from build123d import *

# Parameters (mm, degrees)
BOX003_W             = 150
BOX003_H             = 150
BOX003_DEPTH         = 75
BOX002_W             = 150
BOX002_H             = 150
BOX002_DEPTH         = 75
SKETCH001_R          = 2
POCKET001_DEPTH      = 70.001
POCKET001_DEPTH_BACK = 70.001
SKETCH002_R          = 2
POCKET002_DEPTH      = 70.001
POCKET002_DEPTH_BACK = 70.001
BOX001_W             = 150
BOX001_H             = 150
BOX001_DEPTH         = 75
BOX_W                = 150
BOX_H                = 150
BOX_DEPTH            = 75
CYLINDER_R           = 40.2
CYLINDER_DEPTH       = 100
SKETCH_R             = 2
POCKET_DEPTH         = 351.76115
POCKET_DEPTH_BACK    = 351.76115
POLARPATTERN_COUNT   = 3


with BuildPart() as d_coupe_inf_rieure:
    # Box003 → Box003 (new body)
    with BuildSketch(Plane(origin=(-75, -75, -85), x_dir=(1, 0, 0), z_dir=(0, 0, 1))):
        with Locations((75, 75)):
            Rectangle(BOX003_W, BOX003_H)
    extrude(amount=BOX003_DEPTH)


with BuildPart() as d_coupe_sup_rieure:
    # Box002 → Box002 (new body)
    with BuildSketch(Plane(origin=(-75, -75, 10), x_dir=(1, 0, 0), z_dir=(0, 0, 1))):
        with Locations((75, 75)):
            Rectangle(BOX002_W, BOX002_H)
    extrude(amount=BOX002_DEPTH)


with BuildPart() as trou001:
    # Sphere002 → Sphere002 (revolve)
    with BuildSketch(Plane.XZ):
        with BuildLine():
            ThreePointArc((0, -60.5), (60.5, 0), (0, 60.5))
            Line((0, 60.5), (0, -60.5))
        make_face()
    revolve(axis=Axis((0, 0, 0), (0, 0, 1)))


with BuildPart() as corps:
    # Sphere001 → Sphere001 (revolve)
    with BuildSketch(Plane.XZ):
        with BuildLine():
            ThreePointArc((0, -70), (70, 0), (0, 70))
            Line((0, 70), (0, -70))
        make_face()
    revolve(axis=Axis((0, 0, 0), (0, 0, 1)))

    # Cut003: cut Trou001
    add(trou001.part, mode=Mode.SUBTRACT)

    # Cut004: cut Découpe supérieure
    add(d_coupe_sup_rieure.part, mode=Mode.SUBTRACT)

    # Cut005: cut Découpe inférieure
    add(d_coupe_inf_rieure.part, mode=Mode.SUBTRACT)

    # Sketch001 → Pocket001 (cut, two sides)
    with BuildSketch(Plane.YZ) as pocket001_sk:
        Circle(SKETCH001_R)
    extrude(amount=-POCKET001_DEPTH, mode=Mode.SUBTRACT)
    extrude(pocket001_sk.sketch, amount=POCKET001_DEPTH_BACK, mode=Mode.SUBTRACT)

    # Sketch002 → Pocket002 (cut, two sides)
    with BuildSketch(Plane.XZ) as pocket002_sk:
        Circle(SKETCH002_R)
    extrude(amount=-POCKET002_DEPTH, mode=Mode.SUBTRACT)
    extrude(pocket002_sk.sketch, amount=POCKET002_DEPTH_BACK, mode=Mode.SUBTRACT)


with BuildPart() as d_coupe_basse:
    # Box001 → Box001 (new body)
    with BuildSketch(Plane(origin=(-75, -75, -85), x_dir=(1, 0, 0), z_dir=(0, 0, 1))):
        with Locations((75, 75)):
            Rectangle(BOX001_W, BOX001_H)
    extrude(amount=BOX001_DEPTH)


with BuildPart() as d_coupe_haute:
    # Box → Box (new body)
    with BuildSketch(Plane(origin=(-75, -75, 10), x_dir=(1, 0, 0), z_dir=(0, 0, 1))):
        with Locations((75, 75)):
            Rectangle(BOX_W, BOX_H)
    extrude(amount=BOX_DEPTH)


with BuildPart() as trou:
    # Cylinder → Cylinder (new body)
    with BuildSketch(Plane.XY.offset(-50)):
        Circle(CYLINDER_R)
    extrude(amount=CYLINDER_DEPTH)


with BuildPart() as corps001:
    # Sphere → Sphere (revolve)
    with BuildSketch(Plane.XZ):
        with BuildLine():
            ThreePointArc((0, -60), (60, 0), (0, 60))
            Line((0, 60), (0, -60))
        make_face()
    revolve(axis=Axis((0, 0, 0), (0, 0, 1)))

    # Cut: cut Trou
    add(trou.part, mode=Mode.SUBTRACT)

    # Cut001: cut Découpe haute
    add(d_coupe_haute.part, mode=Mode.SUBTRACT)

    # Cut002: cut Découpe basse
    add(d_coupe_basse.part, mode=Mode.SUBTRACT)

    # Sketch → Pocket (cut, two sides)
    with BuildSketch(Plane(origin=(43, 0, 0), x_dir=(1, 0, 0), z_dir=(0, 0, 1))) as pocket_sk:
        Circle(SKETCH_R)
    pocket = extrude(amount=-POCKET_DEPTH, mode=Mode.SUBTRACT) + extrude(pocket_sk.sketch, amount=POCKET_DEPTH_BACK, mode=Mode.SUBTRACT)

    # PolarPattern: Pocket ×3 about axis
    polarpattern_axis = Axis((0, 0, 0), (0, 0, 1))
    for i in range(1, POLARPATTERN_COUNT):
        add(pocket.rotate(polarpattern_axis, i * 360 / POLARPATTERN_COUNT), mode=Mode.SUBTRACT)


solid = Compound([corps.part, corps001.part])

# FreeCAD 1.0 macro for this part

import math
import FreeCAD as App
import Part
import Sketcher

V = App.Vector
Q = App.Units.Quantity

doc = App.newDocument("Part")
body = doc.addObject("PartDesign::Body", "Body")

# Sketch on XY plane
sketch1 = body.newObject("Sketcher::SketchObject", "Sketch")
sketch1.AttachmentSupport = (doc.getObject("XY_Plane"), [""])
sketch1.MapMode = "FlatFace"
sketch1.AttachmentOffset = App.Placement(V(0, 0, -85), App.Rotation())
sketch1.addGeometry(Part.LineSegment(V(-75, 75, 0), V(-75, -75, 0)), False)
sketch1.addGeometry(Part.LineSegment(V(-75, -75, 0), V(75, -75, 0)), False)
sketch1.addGeometry(Part.LineSegment(V(75, -75, 0), V(75, 75, 0)), False)
sketch1.addGeometry(Part.LineSegment(V(75, 75, 0), V(-75, 75, 0)), False)
sketch1.addConstraint(Sketcher.Constraint("Coincident", 0, 2, 1, 1))
sketch1.addConstraint(Sketcher.Constraint("Coincident", 1, 2, 2, 1))
sketch1.addConstraint(Sketcher.Constraint("Coincident", 2, 2, 3, 1))
sketch1.addConstraint(Sketcher.Constraint("Coincident", 3, 2, 0, 1))
sketch1.addConstraint(Sketcher.Constraint("Vertical", 0))
sketch1.addConstraint(Sketcher.Constraint("Horizontal", 1))
sketch1.addConstraint(Sketcher.Constraint("Vertical", 2))
sketch1.addConstraint(Sketcher.Constraint("Horizontal", 3))
sketch1.addConstraint(Sketcher.Constraint("Symmetric", 0, 2, 2, 2, -1, 1))
sketch1.addConstraint(Sketcher.Constraint("Equal", 3, 0))
sketch1.addConstraint(Sketcher.Constraint("DistanceX", 1, 1, 1, 2, Q("150 mm")))
pad1 = body.newObject("PartDesign::Pad", "Pad")
pad1.Profile = sketch1
pad1.Length = 75
body2 = doc.addObject("PartDesign::Body", "Body001")

# Sketch on XY plane
sketch2 = body2.newObject("Sketcher::SketchObject", "Sketch001")
sketch2.AttachmentSupport = (doc.getObject("XY_Plane001"), [""])
sketch2.MapMode = "FlatFace"
sketch2.AttachmentOffset = App.Placement(V(0, 0, 10), App.Rotation())
sketch2.addGeometry(Part.LineSegment(V(-75, 75, 0), V(-75, -75, 0)), False)
sketch2.addGeometry(Part.LineSegment(V(-75, -75, 0), V(75, -75, 0)), False)
sketch2.addGeometry(Part.LineSegment(V(75, -75, 0), V(75, 75, 0)), False)
sketch2.addGeometry(Part.LineSegment(V(75, 75, 0), V(-75, 75, 0)), False)
sketch2.addConstraint(Sketcher.Constraint("Coincident", 0, 2, 1, 1))
sketch2.addConstraint(Sketcher.Constraint("Coincident", 1, 2, 2, 1))
sketch2.addConstraint(Sketcher.Constraint("Coincident", 2, 2, 3, 1))
sketch2.addConstraint(Sketcher.Constraint("Coincident", 3, 2, 0, 1))
sketch2.addConstraint(Sketcher.Constraint("Vertical", 0))
sketch2.addConstraint(Sketcher.Constraint("Horizontal", 1))
sketch2.addConstraint(Sketcher.Constraint("Vertical", 2))
sketch2.addConstraint(Sketcher.Constraint("Horizontal", 3))
sketch2.addConstraint(Sketcher.Constraint("Symmetric", 0, 2, 2, 2, -1, 1))
sketch2.addConstraint(Sketcher.Constraint("Equal", 3, 0))
sketch2.addConstraint(Sketcher.Constraint("DistanceX", 1, 1, 1, 2, Q("150 mm")))
pad2 = body2.newObject("PartDesign::Pad", "Pad001")
pad2.Profile = sketch2
pad2.Length = 75
body3 = doc.addObject("PartDesign::Body", "Body002")

# Sketch on XZ plane
sketch3 = body3.newObject("Sketcher::SketchObject", "Sketch002")
sketch3.AttachmentSupport = (doc.getObject("XZ_Plane002"), [""])
sketch3.MapMode = "FlatFace"
sketch3.addGeometry(Part.ArcOfCircle(Part.Circle(V(0, 0, 0), V(0, 0, 1), 60.5), math.radians(-90), math.radians(90)), False)
sketch3.addGeometry(Part.LineSegment(V(0, 60.5, 0), V(0, -60.5, 0)), False)
sketch3.addConstraint(Sketcher.Constraint("Coincident", 0, 1, 1, 2))
sketch3.addConstraint(Sketcher.Constraint("Coincident", 1, 1, 0, 2))
sketch3.addConstraint(Sketcher.Constraint("Vertical", 1))
sketch3.addConstraint(Sketcher.Constraint("Coincident", 0, 3, -1, 1))
sketch3.addConstraint(Sketcher.Constraint("PointOnObject", 0, 1, -2))
sketch3.addConstraint(Sketcher.Constraint("Radius", 0, Q("60.5 mm")))
revolution = body3.newObject("PartDesign::Revolution", "Revolution")
revolution.Profile = sketch3
revolution.ReferenceAxis = (sketch3, ["V_Axis"])
revolution.Angle = 360
body4 = doc.addObject("PartDesign::Body", "Body003")

# Sketch on XZ plane
sketch4 = body4.newObject("Sketcher::SketchObject", "Sketch003")
sketch4.AttachmentSupport = (doc.getObject("XZ_Plane003"), [""])
sketch4.MapMode = "FlatFace"
sketch4.addGeometry(Part.ArcOfCircle(Part.Circle(V(0, 0, 0), V(0, 0, 1), 70), math.radians(-90), math.radians(90)), False)
sketch4.addGeometry(Part.LineSegment(V(0, 70, 0), V(0, -70, 0)), False)
sketch4.addConstraint(Sketcher.Constraint("Coincident", 0, 1, 1, 2))
sketch4.addConstraint(Sketcher.Constraint("Coincident", 1, 1, 0, 2))
sketch4.addConstraint(Sketcher.Constraint("Vertical", 1))
sketch4.addConstraint(Sketcher.Constraint("Coincident", 0, 3, -1, 1))
sketch4.addConstraint(Sketcher.Constraint("PointOnObject", 0, 1, -2))
sketch4.addConstraint(Sketcher.Constraint("Radius", 0, Q("70 mm")))
revolution2 = body4.newObject("PartDesign::Revolution", "Revolution001")
revolution2.Profile = sketch4
revolution2.ReferenceAxis = (sketch4, ["V_Axis"])
revolution2.Angle = 360
doc.recompute()

boolean = body4.newObject("PartDesign::Boolean", "Boolean")
boolean.Type = "Cut"
boolean.addObjects([body3])
doc.recompute()

boolean2 = body4.newObject("PartDesign::Boolean", "Boolean001")
boolean2.Type = "Cut"
boolean2.addObjects([body2])
doc.recompute()

boolean3 = body4.newObject("PartDesign::Boolean", "Boolean002")
boolean3.Type = "Cut"
boolean3.addObjects([body])

# Sketch on YZ plane
sketch5 = body4.newObject("Sketcher::SketchObject", "Sketch004")
sketch5.AttachmentSupport = (doc.getObject("YZ_Plane003"), [""])
sketch5.MapMode = "FlatFace"
sketch5.addGeometry(Part.Circle(V(0, 0, 0), V(0, 0, 1), 2), False)
sketch5.addConstraint(Sketcher.Constraint("Coincident", 0, 3, -1, 1))
sketch5.addConstraint(Sketcher.Constraint("Diameter", 0, Q("4 mm")))
pocket1 = body4.newObject("PartDesign::Pocket", "Pocket")
pocket1.Profile = sketch5
pocket1.Type = "ThroughAll"
pocket1.Midplane = True

# Sketch on XZ plane
sketch6 = body4.newObject("Sketcher::SketchObject", "Sketch005")
sketch6.AttachmentSupport = (doc.getObject("XZ_Plane003"), [""])
sketch6.MapMode = "FlatFace"
sketch6.addGeometry(Part.Circle(V(0, 0, 0), V(0, 0, 1), 2), False)
sketch6.addConstraint(Sketcher.Constraint("Coincident", 0, 3, -1, 1))
sketch6.addConstraint(Sketcher.Constraint("Diameter", 0, Q("4 mm")))
pocket2 = body4.newObject("PartDesign::Pocket", "Pocket001")
pocket2.Profile = sketch6
pocket2.Type = "ThroughAll"
pocket2.Midplane = True
body5 = doc.addObject("PartDesign::Body", "Body004")

# Sketch on XY plane
sketch7 = body5.newObject("Sketcher::SketchObject", "Sketch006")
sketch7.AttachmentSupport = (doc.getObject("XY_Plane004"), [""])
sketch7.MapMode = "FlatFace"
sketch7.AttachmentOffset = App.Placement(V(0, 0, -85), App.Rotation())
sketch7.addGeometry(Part.LineSegment(V(-75, 75, 0), V(-75, -75, 0)), False)
sketch7.addGeometry(Part.LineSegment(V(-75, -75, 0), V(75, -75, 0)), False)
sketch7.addGeometry(Part.LineSegment(V(75, -75, 0), V(75, 75, 0)), False)
sketch7.addGeometry(Part.LineSegment(V(75, 75, 0), V(-75, 75, 0)), False)
sketch7.addConstraint(Sketcher.Constraint("Coincident", 0, 2, 1, 1))
sketch7.addConstraint(Sketcher.Constraint("Coincident", 1, 2, 2, 1))
sketch7.addConstraint(Sketcher.Constraint("Coincident", 2, 2, 3, 1))
sketch7.addConstraint(Sketcher.Constraint("Coincident", 3, 2, 0, 1))
sketch7.addConstraint(Sketcher.Constraint("Vertical", 0))
sketch7.addConstraint(Sketcher.Constraint("Horizontal", 1))
sketch7.addConstraint(Sketcher.Constraint("Vertical", 2))
sketch7.addConstraint(Sketcher.Constraint("Horizontal", 3))
sketch7.addConstraint(Sketcher.Constraint("Symmetric", 0, 2, 2, 2, -1, 1))
sketch7.addConstraint(Sketcher.Constraint("Equal", 3, 0))
sketch7.addConstraint(Sketcher.Constraint("DistanceX", 1, 1, 1, 2, Q("150 mm")))
pad3 = body5.newObject("PartDesign::Pad", "Pad002")
pad3.Profile = sketch7
pad3.Length = 75
body6 = doc.addObject("PartDesign::Body", "Body005")

# Sketch on XY plane
sketch8 = body6.newObject("Sketcher::SketchObject", "Sketch007")
sketch8.AttachmentSupport = (doc.getObject("XY_Plane005"), [""])
sketch8.MapMode = "FlatFace"
sketch8.AttachmentOffset = App.Placement(V(0, 0, 10), App.Rotation())
sketch8.addGeometry(Part.LineSegment(V(-75, 75, 0), V(-75, -75, 0)), False)
sketch8.addGeometry(Part.LineSegment(V(-75, -75, 0), V(75, -75, 0)), False)
sketch8.addGeometry(Part.LineSegment(V(75, -75, 0), V(75, 75, 0)), False)
sketch8.addGeometry(Part.LineSegment(V(75, 75, 0), V(-75, 75, 0)), False)
sketch8.addConstraint(Sketcher.Constraint("Coincident", 0, 2, 1, 1))
sketch8.addConstraint(Sketcher.Constraint("Coincident", 1, 2, 2, 1))
sketch8.addConstraint(Sketcher.Constraint("Coincident", 2, 2, 3, 1))
sketch8.addConstraint(Sketcher.Constraint("Coincident", 3, 2, 0, 1))
sketch8.addConstraint(Sketcher.Constraint("Vertical", 0))
sketch8.addConstraint(Sketcher.Constraint("Horizontal", 1))
sketch8.addConstraint(Sketcher.Constraint("Vertical", 2))
sketch8.addConstraint(Sketcher.Constraint("Horizontal", 3))
sketch8.addConstraint(Sketcher.Constraint("Symmetric", 0, 2, 2, 2, -1, 1))
sketch8.addConstraint(Sketcher.Constraint("Equal", 3, 0))
sketch8.addConstraint(Sketcher.Constraint("DistanceX", 1, 1, 1, 2, Q("150 mm")))
pad4 = body6.newObject("PartDesign::Pad", "Pad003")
pad4.Profile = sketch8
pad4.Length = 75
body7 = doc.addObject("PartDesign::Body", "Body006")

# Sketch on XY plane
sketch9 = body7.newObject("Sketcher::SketchObject", "Sketch008")
sketch9.AttachmentSupport = (doc.getObject("XY_Plane006"), [""])
sketch9.MapMode = "FlatFace"
sketch9.AttachmentOffset = App.Placement(V(0, 0, -50), App.Rotation())
sketch9.addGeometry(Part.Circle(V(0, 0, 0), V(0, 0, 1), 40.2), False)
sketch9.addConstraint(Sketcher.Constraint("Coincident", 0, 3, -1, 1))
sketch9.addConstraint(Sketcher.Constraint("Diameter", 0, Q("80.4 mm")))
pad5 = body7.newObject("PartDesign::Pad", "Pad004")
pad5.Profile = sketch9
pad5.Length = 100
body8 = doc.addObject("PartDesign::Body", "Body007")
body8.AllowCompound = True

# Sketch on XZ plane
sketch10 = body8.newObject("Sketcher::SketchObject", "Sketch009")
sketch10.AttachmentSupport = (doc.getObject("XZ_Plane007"), [""])
sketch10.MapMode = "FlatFace"
sketch10.addGeometry(Part.ArcOfCircle(Part.Circle(V(0, 0, 0), V(0, 0, 1), 60), math.radians(-90), math.radians(90)), False)
sketch10.addGeometry(Part.LineSegment(V(0, 60, 0), V(0, -60, 0)), False)
sketch10.addConstraint(Sketcher.Constraint("Coincident", 0, 1, 1, 2))
sketch10.addConstraint(Sketcher.Constraint("Coincident", 1, 1, 0, 2))
sketch10.addConstraint(Sketcher.Constraint("Vertical", 1))
sketch10.addConstraint(Sketcher.Constraint("Coincident", 0, 3, -1, 1))
sketch10.addConstraint(Sketcher.Constraint("PointOnObject", 0, 1, -2))
sketch10.addConstraint(Sketcher.Constraint("Radius", 0, Q("60 mm")))
revolution3 = body8.newObject("PartDesign::Revolution", "Revolution002")
revolution3.Profile = sketch10
revolution3.ReferenceAxis = (sketch10, ["V_Axis"])
revolution3.Angle = 360
doc.recompute()

boolean4 = body8.newObject("PartDesign::Boolean", "Boolean003")
boolean4.Type = "Cut"
boolean4.addObjects([body7])
doc.recompute()

boolean5 = body8.newObject("PartDesign::Boolean", "Boolean004")
boolean5.Type = "Cut"
boolean5.addObjects([body6])
doc.recompute()

boolean6 = body8.newObject("PartDesign::Boolean", "Boolean005")
boolean6.Type = "Cut"
boolean6.addObjects([body5])

# Sketch on XY plane
sketch11 = body8.newObject("Sketcher::SketchObject", "Sketch010")
sketch11.AttachmentSupport = (doc.getObject("XY_Plane007"), [""])
sketch11.MapMode = "FlatFace"
sketch11.addGeometry(Part.Circle(V(43, 0, 0), V(0, 0, 1), 2), False)
sketch11.addConstraint(Sketcher.Constraint("PointOnObject", 0, 3, -1))
sketch11.addConstraint(Sketcher.Constraint("Diameter", 0, Q("4 mm")))
sketch11.addConstraint(Sketcher.Constraint("DistanceX", -1, 1, 0, 3, Q("43 mm")))
pocket3 = body8.newObject("PartDesign::Pocket", "Pocket002")
pocket3.Profile = sketch11
pocket3.Type = "ThroughAll"
pocket3.Midplane = True
doc.recompute()

polarpattern = body8.newObject("PartDesign::PolarPattern", "PolarPattern")
polarpattern.Originals = [pocket3]
polarpattern.Axis = (doc.getObject("Z_Axis007"), [""])
polarpattern.Angle = 360
polarpattern.Occurrences = 3
body8.Tip = polarpattern

doc.recompute()
